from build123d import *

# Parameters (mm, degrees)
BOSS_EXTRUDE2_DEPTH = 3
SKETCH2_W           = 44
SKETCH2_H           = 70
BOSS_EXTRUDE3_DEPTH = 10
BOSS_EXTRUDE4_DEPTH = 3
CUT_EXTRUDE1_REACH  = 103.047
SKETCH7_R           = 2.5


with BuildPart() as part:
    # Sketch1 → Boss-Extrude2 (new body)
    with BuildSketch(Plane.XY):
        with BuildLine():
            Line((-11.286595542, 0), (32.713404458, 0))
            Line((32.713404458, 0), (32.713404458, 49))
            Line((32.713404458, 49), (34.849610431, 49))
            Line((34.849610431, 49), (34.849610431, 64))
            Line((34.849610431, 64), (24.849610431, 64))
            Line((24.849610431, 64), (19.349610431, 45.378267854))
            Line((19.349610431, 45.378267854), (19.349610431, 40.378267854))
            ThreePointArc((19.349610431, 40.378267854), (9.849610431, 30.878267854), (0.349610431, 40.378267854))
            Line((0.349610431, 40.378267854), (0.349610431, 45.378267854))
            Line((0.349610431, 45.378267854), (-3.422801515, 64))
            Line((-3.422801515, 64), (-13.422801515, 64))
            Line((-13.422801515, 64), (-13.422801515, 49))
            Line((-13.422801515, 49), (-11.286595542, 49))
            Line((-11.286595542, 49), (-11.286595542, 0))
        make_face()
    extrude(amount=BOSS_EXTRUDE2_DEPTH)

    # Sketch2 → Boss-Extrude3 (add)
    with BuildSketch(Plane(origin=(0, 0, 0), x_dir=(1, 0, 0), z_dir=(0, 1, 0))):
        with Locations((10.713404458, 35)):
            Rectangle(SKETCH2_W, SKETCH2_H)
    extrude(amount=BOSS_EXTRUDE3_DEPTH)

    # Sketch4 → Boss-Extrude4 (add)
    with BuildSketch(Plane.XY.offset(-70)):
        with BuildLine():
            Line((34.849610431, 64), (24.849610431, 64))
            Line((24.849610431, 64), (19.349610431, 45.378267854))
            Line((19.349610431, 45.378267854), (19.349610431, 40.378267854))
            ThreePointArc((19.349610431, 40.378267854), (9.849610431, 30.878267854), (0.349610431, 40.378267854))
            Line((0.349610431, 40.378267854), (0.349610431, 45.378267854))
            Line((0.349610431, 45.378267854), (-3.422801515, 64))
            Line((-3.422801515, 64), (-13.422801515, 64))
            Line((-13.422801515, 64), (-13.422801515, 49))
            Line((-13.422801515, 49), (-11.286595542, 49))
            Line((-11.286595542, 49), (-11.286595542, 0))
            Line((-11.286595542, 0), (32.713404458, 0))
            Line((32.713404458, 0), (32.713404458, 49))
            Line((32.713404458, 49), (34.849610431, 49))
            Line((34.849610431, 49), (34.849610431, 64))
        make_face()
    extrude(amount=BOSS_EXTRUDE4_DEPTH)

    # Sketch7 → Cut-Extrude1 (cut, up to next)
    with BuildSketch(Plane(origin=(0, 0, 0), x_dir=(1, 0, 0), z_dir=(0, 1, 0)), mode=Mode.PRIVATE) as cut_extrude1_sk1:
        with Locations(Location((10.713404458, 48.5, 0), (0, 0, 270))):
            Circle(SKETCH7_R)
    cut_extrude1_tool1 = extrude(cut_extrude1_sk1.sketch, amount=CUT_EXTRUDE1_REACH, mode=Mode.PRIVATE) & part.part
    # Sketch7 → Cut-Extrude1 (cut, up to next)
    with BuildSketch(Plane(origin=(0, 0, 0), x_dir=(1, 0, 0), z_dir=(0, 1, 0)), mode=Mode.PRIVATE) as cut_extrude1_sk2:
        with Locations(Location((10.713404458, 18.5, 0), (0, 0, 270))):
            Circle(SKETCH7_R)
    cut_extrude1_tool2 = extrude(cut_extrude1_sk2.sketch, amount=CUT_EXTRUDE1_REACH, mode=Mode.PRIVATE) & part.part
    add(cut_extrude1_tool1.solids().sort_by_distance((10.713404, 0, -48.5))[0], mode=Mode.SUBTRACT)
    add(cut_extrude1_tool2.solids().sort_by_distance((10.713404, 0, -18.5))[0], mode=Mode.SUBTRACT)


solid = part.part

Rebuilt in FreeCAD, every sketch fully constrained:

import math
import FreeCAD as App
import Part
import Sketcher

V = App.Vector

doc = App.newDocument("Part")
body = doc.addObject("PartDesign::Body", "Body")

sketch1 = body.newObject("Sketcher::SketchObject", "Sketch")
sketch1.AttachmentSupport = (doc.getObject("XY_Plane"), [""])
sketch1.MapMode = "FlatFace"
sketch1.addGeometry(Part.LineSegment(V(-11.3, 0, 0), V(32.7, 0, 0)), False)
sketch1.addGeometry(Part.LineSegment(V(32.7, 0, 0), V(32.7, 49, 0)), False)
sketch1.addGeometry(Part.LineSegment(V(32.7, 49, 0), V(34.8, 49, 0)), False)
sketch1.addGeometry(Part.LineSegment(V(34.8, 49, 0), V(34.8, 64, 0)), False)
sketch1.addGeometry(Part.LineSegment(V(34.8, 64, 0), V(24.8, 64, 0)), False)
sketch1.addGeometry(Part.LineSegment(V(24.8, 64, 0), V(19.3, 45.4, 0)), False)
sketch1.addGeometry(Part.LineSegment(V(19.3, 45.4, 0), V(19.3, 40.4, 0)), False)
sketch1.addGeometry(Part.ArcOfCircle(Part.Circle(V(9.8, 40.4, 0), V(0, 0, 1), 9.5), math.radians(180), math.radians(360)), False)
sketch1.addGeometry(Part.LineSegment(V(0.3, 40.4, 0), V(0.3, 45.4, 0)), False)
sketch1.addGeometry(Part.LineSegment(V(0.3, 45.4, 0), V(-3.4, 64, 0)), False)
sketch1.addGeometry(Part.LineSegment(V(-3.4, 64, 0), V(-13.4, 64, 0)), False)
sketch1.addGeometry(Part.LineSegment(V(-13.4, 64, 0), V(-13.4, 49, 0)), False)
sketch1.addGeometry(Part.LineSegment(V(-13.4, 49, 0), V(-11.3, 49, 0)), False)
sketch1.addGeometry(Part.LineSegment(V(-11.3, 49, 0), V(-11.3, 0, 0)), False)
sketch1.addConstraint(Sketcher.Constraint("Coincident", 0, 2, 1, 1))
sketch1.addConstraint(Sketcher.Constraint("Coincident", 1, 2, 2, 1))
sketch1.addConstraint(Sketcher.Constraint("Coincident", 2, 2, 3, 1))
sketch1.addConstraint(Sketcher.Constraint("Coincident", 3, 2, 4, 1))
sketch1.addConstraint(Sketcher.Constraint("Coincident", 4, 2, 5, 1))
sketch1.addConstraint(Sketcher.Constraint("Coincident", 5, 2, 6, 1))
sketch1.addConstraint(Sketcher.Constraint("Tangent", 6, 2, 7, 2))
sketch1.addConstraint(Sketcher.Constraint("Tangent", 7, 1, 8, 1))
sketch1.addConstraint(Sketcher.Constraint("Coincident", 8, 2, 9, 1))
sketch1.addConstraint(Sketcher.Constraint("Coincident", 9, 2, 10, 1))
sketch1.addConstraint(Sketcher.Constraint("Coincident", 10, 2, 11, 1))
sketch1.addConstraint(Sketcher.Constraint("Coincident", 11, 2, 12, 1))
sketch1.addConstraint(Sketcher.Constraint("Coincident", 12, 2, 13, 1))
sketch1.addConstraint(Sketcher.Constraint("Coincident", 13, 2, 0, 1))
sketch1.addConstraint(Sketcher.Constraint("Horizontal", 0))
sketch1.addConstraint(Sketcher.Constraint("Vertical", 1))
sketch1.addConstraint(Sketcher.Constraint("Horizontal", 2))
sketch1.addConstraint(Sketcher.Constraint("Vertical", 3))
sketch1.addConstraint(Sketcher.Constraint("Horizontal", 4))
sketch1.addConstraint(Sketcher.Constraint("Vertical", 6))
sketch1.addConstraint(Sketcher.Constraint("Vertical", 8))
sketch1.addConstraint(Sketcher.Constraint("Horizontal", 10))
sketch1.addConstraint(Sketcher.Constraint("Vertical", 11))
sketch1.addConstraint(Sketcher.Constraint("Horizontal", 12))
sketch1.addConstraint(Sketcher.Constraint("Vertical", 13))
sketch1.addConstraint(Sketcher.Constraint("PointOnObject", 0, 2, -1))
sketch1.addConstraint(Sketcher.Constraint("Horizontal", 5, 2, 8, 2))
sketch1.addConstraint(Sketcher.Constraint("Horizontal", 4, 2, 9, 2))
sketch1.addConstraint(Sketcher.Constraint("Horizontal", 2, 2, 11, 2))
sketch1.addConstraint(Sketcher.Constraint("Equal", 4, 10))
sketch1.addConstraint(Sketcher.Constraint("Equal", 2, 12))
sketch1.addConstraint(Sketcher.Constraint("Radius", 7, 9.5))
sketch1.addConstraint(Sketcher.Constraint("DistanceX", 0, 1, 0, 2, 44.0))
sketch1.addConstraint(Sketcher.Constraint("DistanceX", 4, 2, 4, 1, 10.0))
sketch1.addConstraint(Sketcher.Constraint("DistanceY", 1, 1, 1, 2, 49.0))
sketch1.addConstraint(Sketcher.Constraint("DistanceY", 3, 1, 3, 2, 15.0))
sketch1.addConstraint(Sketcher.Constraint("DistanceY", 6, 2, 6, 1, 5.0))
sketch1.addConstraint(Sketcher.Constraint("Distance", 9, 19.0))
sketch1.addConstraint(Sketcher.Constraint("DistanceX", 7, 3, 2, 2, 25.0))
sketch1.addConstraint(Sketcher.Constraint("DistanceX", 9, 2, -1, 1, 3.422802))
sketch1.addConstraint(Sketcher.Constraint("DistanceX", 2, 1, 2, 2, 2.136206))
pad1 = body.newObject("PartDesign::Pad", "Pad")
pad1.Profile = sketch1
pad1.Length = 3

sketch2 = body.newObject("Sketcher::SketchObject", "Sketch001")
sketch2.AttachmentSupport = (doc.getObject("XZ_Plane"), [""])
sketch2.MapMode = "FlatFace"
sketch2.addGeometry(Part.LineSegment(V(-11, -70, 0), V(-11, 0, 0)), False)
sketch2.addGeometry(Part.LineSegment(V(-11, 0, 0), V(33, 0, 0)), False)
sketch2.addGeometry(Part.LineSegment(V(33, 0, 0), V(33, -70, 0)), False)
sketch2.addGeometry(Part.LineSegment(V(33, -70, 0), V(-11, -70, 0)), False)
sketch2.addConstraint(Sketcher.Constraint("Coincident", 0, 2, 1, 1))
sketch2.addConstraint(Sketcher.Constraint("Coincident", 1, 2, 2, 1))
sketch2.addConstraint(Sketcher.Constraint("Coincident", 2, 2, 3, 1))
sketch2.addConstraint(Sketcher.Constraint("Coincident", 3, 2, 0, 1))
sketch2.addConstraint(Sketcher.Constraint("Vertical", 0))
sketch2.addConstraint(Sketcher.Constraint("Horizontal", 1))
sketch2.addConstraint(Sketcher.Constraint("Vertical", 2))
sketch2.addConstraint(Sketcher.Constraint("Horizontal", 3))
sketch2.addConstraint(Sketcher.Constraint("PointOnObject", 0, 2, -1))
sketch2.addConstraint(Sketcher.Constraint("DistanceX", 1, 1, 1, 2, 44.0))
sketch2.addConstraint(Sketcher.Constraint("DistanceY", 0, 1, 0, 2, 70.0))
sketch2.addConstraint(Sketcher.Constraint("DistanceX", 0, 2, -1, 1, 11.286596))
pad2 = body.newObject("PartDesign::Pad", "Pad001")
pad2.Profile = sketch2
pad2.Length = 10
pad2.Reversed = True

sketch3 = body.newObject("Sketcher::SketchObject", "Sketch002")
sketch3.AttachmentSupport = (doc.getObject("XY_Plane"), [""])
sketch3.MapMode = "FlatFace"
sketch3.AttachmentOffset = App.Placement(V(0, 0, -70), App.Rotation())
sketch3.addGeometry(Part.LineSegment(V(34.8, 64, 0), V(24.8, 64, 0)), False)
sketch3.addGeometry(Part.LineSegment(V(24.8, 64, 0), V(19.3, 45.4, 0)), False)
sketch3.addGeometry(Part.LineSegment(V(19.3, 45.4, 0), V(19.3, 40.4, 0)), False)
sketch3.addGeometry(Part.ArcOfCircle(Part.Circle(V(9.8, 40.4, 0), V(0, 0, 1), 9.5), math.radians(180), math.radians(360)), False)
sketch3.addGeometry(Part.LineSegment(V(0.3, 40.4, 0), V(0.3, 45.4, 0)), False)
sketch3.addGeometry(Part.LineSegment(V(0.3, 45.4, 0), V(-3.4, 64, 0)), False)
sketch3.addGeometry(Part.LineSegment(V(-3.4, 64, 0), V(-13.4, 64, 0)), False)
sketch3.addGeometry(Part.LineSegment(V(-13.4, 64, 0), V(-13.4, 49, 0)), False)
sketch3.addGeometry(Part.LineSegment(V(-13.4, 49, 0), V(-11.3, 49, 0)), False)
sketch3.addGeometry(Part.LineSegment(V(-11.3, 49, 0), V(-11.3, 0, 0)), False)
sketch3.addGeometry(Part.LineSegment(V(-11.3, 0, 0), V(32.7, 0, 0)), False)
sketch3.addGeometry(Part.LineSegment(V(32.7, 0, 0), V(32.7, 49, 0)), False)
sketch3.addGeometry(Part.LineSegment(V(32.7, 49, 0), V(34.8, 49, 0)), False)
sketch3.addGeometry(Part.LineSegment(V(34.8, 49, 0), V(34.8, 64, 0)), False)
sketch3.addConstraint(Sketcher.Constraint("Coincident", 0, 2, 1, 1))
sketch3.addConstraint(Sketcher.Constraint("Coincident", 1, 2, 2, 1))
sketch3.addConstraint(Sketcher.Constraint("Tangent", 2, 2, 3, 2))
sketch3.addConstraint(Sketcher.Constraint("Tangent", 3, 1, 4, 1))
sketch3.addConstraint(Sketcher.Constraint("Coincident", 4, 2, 5, 1))
sketch3.addConstraint(Sketcher.Constraint("Coincident", 5, 2, 6, 1))
sketch3.addConstraint(Sketcher.Constraint("Coincident", 6, 2, 7, 1))
sketch3.addConstraint(Sketcher.Constraint("Coincident", 7, 2, 8, 1))
sketch3.addConstraint(Sketcher.Constraint("Coincident", 8, 2, 9, 1))
sketch3.addConstraint(Sketcher.Constraint("Coincident", 9, 2, 10, 1))
sketch3.addConstraint(Sketcher.Constraint("Coincident", 10, 2, 11, 1))
sketch3.addConstraint(Sketcher.Constraint("Coincident", 11, 2, 12, 1))
sketch3.addConstraint(Sketcher.Constraint("Coincident", 12, 2, 13, 1))
sketch3.addConstraint(Sketcher.Constraint("Coincident", 13, 2, 0, 1))
sketch3.addConstraint(Sketcher.Constraint("Horizontal", 0))
sketch3.addConstraint(Sketcher.Constraint("Vertical", 2))
sketch3.addConstraint(Sketcher.Constraint("Vertical", 4))
sketch3.addConstraint(Sketcher.Constraint("Horizontal", 6))
sketch3.addConstraint(Sketcher.Constraint("Vertical", 7))
sketch3.addConstraint(Sketcher.Constraint("Horizontal", 8))
sketch3.addConstraint(Sketcher.Constraint("Vertical", 9))
sketch3.addConstraint(Sketcher.Constraint("Horizontal", 10))
sketch3.addConstraint(Sketcher.Constraint("Vertical", 11))
sketch3.addConstraint(Sketcher.Constraint("Horizontal", 12))
sketch3.addConstraint(Sketcher.Constraint("Vertical", 13))
sketch3.addConstraint(Sketcher.Constraint("PointOnObject", 9, 2, -1))
sketch3.addConstraint(Sketcher.Constraint("Horizontal", 1, 2, 4, 2))
sketch3.addConstraint(Sketcher.Constraint("Horizontal", 0, 2, 5, 2))
sketch3.addConstraint(Sketcher.Constraint("Horizontal", 8, 2, 11, 2))
sketch3.addConstraint(Sketcher.Constraint("Equal", 0, 6))
sketch3.addConstraint(Sketcher.Constraint("Equal", 8, 12))
sketch3.addConstraint(Sketcher.Constraint("Radius", 3, 9.5))
sketch3.addConstraint(Sketcher.Constraint("DistanceX", 0, 2, 0, 1, 10.0))
sketch3.addConstraint(Sketcher.Constraint("DistanceX", 10, 1, 10, 2, 44.0))
sketch3.addConstraint(Sketcher.Constraint("DistanceY", 2, 2, 2, 1, 5.0))
sketch3.addConstraint(Sketcher.Constraint("DistanceY", 7, 2, 7, 1, 15.0))
sketch3.addConstraint(Sketcher.Constraint("DistanceY", 9, 2, 9, 1, 49.0))
sketch3.addConstraint(Sketcher.Constraint("Distance", 5, 19.0))
sketch3.addConstraint(Sketcher.Constraint("DistanceX", 3, 3, 0, 2, 15.0))
sketch3.addConstraint(Sketcher.Constraint("DistanceX", 5, 2, -1, 1, 3.422802))
sketch3.addConstraint(Sketcher.Constraint("DistanceX", 8, 1, 8, 2, 2.136206))
pad3 = body.newObject("PartDesign::Pad", "Pad002")
pad3.Profile = sketch3
pad3.Length = 3

sketch4 = body.newObject("Sketcher::SketchObject", "Sketch003")
sketch4.AttachmentSupport = (doc.getObject("XZ_Plane"), [""])
sketch4.MapMode = "FlatFace"
sketch4.addGeometry(Part.Circle(V(10.7, -48.5, 0), V(0, 0, 1), 2.5), False)
sketch4.addConstraint(Sketcher.Constraint("Diameter", 0, 5.0))
sketch4.addConstraint(Sketcher.Constraint("DistanceY", 0, 3, -1, 1, 48.5))
sketch4.addConstraint(Sketcher.Constraint("DistanceX", -1, 1, 0, 3, 10.713404))
pocket1 = body.newObject("PartDesign::Pocket", "Pocket")
pocket1.Profile = sketch4
pocket1.Type = "UpToFirst"

sketch5 = body.newObject("Sketcher::SketchObject", "Sketch004")
sketch5.AttachmentSupport = (doc.getObject("XZ_Plane"), [""])
sketch5.MapMode = "FlatFace"
sketch5.addGeometry(Part.Circle(V(10.7, -18.5, 0), V(0, 0, 1), 2.5), False)
sketch5.addConstraint(Sketcher.Constraint("Diameter", 0, 5.0))
sketch5.addConstraint(Sketcher.Constraint("DistanceY", 0, 3, -1, 1, 18.5))
sketch5.addConstraint(Sketcher.Constraint("DistanceX", -1, 1, 0, 3, 10.713404))
pocket2 = body.newObject("PartDesign::Pocket", "Pocket001")
pocket2.Profile = sketch5
pocket2.Type = "UpToFirst"

doc.recompute()
